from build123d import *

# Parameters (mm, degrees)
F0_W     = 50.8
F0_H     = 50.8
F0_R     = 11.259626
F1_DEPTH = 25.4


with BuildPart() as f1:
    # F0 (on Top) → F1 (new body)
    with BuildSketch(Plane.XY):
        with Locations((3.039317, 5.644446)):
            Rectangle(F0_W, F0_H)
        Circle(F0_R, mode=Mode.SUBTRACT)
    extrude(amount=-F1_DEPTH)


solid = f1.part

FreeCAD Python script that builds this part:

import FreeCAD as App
import Part
import Sketcher
from FreeCAD import Vector
Q = App.Units.Quantity


def add_polygon(sketch, points):
    """Adds a closed chain of lines whose ends are joined by coincident constraints."""
    first, n = sketch.GeometryCount, len(points)
    for a, b in zip(points, points[1:] + points[:1]):
        sketch.addGeometry(Part.LineSegment(App.Vector(*a, 0), App.Vector(*b, 0)), False)
    for i in range(n):
        sketch.addConstraint(Sketcher.Constraint("Coincident", first + i, 2, first + (i + 1) % n, 1))

doc = App.newDocument("Part")
body = doc.addObject("PartDesign::Body", "Body")

sketch1 = body.newObject("Sketcher::SketchObject", "Sketch")
sketch1.AttachmentSupport = (doc.getObject("XY_Plane"), [""])
sketch1.MapMode = "FlatFace"
add_polygon(sketch1, [(-22.360683, 31.044446), (-22.360683, -19.755554), (28.439317, -19.755554), (28.439317, 31.044446)])
sketch1.addGeometry(Part.Circle(Vector(0, 0, 0), Vector(0, 0, 1), 11.259626), False)
sketch1.addConstraint(Sketcher.Constraint("Vertical", 0))
sketch1.addConstraint(Sketcher.Constraint("Horizontal", 1))
sketch1.addConstraint(Sketcher.Constraint("Vertical", 2))
sketch1.addConstraint(Sketcher.Constraint("Horizontal", 3))
sketch1.addConstraint(Sketcher.Constraint("Coincident", 4, 3, -1, 1))
sketch1.addConstraint(Sketcher.Constraint("Equal", 3, 0))
sketch1.addConstraint(Sketcher.Constraint("DistanceX", 1, 1, 1, 2, Q("2 in")))
sketch1.addConstraint(Sketcher.Constraint("Diameter", 4, 22.519252))
sketch1.addConstraint(Sketcher.Constraint("DistanceX", 0, 2, -1, 1, 22.360683))
sketch1.addConstraint(Sketcher.Constraint("DistanceY", 0, 2, -1, 1, 19.755554))
pad1 = body.newObject("PartDesign::Pad", "Pad")
pad1.Profile = sketch1
pad1.Length = Q("1 in")
pad1.Reversed = True

doc.recompute()
